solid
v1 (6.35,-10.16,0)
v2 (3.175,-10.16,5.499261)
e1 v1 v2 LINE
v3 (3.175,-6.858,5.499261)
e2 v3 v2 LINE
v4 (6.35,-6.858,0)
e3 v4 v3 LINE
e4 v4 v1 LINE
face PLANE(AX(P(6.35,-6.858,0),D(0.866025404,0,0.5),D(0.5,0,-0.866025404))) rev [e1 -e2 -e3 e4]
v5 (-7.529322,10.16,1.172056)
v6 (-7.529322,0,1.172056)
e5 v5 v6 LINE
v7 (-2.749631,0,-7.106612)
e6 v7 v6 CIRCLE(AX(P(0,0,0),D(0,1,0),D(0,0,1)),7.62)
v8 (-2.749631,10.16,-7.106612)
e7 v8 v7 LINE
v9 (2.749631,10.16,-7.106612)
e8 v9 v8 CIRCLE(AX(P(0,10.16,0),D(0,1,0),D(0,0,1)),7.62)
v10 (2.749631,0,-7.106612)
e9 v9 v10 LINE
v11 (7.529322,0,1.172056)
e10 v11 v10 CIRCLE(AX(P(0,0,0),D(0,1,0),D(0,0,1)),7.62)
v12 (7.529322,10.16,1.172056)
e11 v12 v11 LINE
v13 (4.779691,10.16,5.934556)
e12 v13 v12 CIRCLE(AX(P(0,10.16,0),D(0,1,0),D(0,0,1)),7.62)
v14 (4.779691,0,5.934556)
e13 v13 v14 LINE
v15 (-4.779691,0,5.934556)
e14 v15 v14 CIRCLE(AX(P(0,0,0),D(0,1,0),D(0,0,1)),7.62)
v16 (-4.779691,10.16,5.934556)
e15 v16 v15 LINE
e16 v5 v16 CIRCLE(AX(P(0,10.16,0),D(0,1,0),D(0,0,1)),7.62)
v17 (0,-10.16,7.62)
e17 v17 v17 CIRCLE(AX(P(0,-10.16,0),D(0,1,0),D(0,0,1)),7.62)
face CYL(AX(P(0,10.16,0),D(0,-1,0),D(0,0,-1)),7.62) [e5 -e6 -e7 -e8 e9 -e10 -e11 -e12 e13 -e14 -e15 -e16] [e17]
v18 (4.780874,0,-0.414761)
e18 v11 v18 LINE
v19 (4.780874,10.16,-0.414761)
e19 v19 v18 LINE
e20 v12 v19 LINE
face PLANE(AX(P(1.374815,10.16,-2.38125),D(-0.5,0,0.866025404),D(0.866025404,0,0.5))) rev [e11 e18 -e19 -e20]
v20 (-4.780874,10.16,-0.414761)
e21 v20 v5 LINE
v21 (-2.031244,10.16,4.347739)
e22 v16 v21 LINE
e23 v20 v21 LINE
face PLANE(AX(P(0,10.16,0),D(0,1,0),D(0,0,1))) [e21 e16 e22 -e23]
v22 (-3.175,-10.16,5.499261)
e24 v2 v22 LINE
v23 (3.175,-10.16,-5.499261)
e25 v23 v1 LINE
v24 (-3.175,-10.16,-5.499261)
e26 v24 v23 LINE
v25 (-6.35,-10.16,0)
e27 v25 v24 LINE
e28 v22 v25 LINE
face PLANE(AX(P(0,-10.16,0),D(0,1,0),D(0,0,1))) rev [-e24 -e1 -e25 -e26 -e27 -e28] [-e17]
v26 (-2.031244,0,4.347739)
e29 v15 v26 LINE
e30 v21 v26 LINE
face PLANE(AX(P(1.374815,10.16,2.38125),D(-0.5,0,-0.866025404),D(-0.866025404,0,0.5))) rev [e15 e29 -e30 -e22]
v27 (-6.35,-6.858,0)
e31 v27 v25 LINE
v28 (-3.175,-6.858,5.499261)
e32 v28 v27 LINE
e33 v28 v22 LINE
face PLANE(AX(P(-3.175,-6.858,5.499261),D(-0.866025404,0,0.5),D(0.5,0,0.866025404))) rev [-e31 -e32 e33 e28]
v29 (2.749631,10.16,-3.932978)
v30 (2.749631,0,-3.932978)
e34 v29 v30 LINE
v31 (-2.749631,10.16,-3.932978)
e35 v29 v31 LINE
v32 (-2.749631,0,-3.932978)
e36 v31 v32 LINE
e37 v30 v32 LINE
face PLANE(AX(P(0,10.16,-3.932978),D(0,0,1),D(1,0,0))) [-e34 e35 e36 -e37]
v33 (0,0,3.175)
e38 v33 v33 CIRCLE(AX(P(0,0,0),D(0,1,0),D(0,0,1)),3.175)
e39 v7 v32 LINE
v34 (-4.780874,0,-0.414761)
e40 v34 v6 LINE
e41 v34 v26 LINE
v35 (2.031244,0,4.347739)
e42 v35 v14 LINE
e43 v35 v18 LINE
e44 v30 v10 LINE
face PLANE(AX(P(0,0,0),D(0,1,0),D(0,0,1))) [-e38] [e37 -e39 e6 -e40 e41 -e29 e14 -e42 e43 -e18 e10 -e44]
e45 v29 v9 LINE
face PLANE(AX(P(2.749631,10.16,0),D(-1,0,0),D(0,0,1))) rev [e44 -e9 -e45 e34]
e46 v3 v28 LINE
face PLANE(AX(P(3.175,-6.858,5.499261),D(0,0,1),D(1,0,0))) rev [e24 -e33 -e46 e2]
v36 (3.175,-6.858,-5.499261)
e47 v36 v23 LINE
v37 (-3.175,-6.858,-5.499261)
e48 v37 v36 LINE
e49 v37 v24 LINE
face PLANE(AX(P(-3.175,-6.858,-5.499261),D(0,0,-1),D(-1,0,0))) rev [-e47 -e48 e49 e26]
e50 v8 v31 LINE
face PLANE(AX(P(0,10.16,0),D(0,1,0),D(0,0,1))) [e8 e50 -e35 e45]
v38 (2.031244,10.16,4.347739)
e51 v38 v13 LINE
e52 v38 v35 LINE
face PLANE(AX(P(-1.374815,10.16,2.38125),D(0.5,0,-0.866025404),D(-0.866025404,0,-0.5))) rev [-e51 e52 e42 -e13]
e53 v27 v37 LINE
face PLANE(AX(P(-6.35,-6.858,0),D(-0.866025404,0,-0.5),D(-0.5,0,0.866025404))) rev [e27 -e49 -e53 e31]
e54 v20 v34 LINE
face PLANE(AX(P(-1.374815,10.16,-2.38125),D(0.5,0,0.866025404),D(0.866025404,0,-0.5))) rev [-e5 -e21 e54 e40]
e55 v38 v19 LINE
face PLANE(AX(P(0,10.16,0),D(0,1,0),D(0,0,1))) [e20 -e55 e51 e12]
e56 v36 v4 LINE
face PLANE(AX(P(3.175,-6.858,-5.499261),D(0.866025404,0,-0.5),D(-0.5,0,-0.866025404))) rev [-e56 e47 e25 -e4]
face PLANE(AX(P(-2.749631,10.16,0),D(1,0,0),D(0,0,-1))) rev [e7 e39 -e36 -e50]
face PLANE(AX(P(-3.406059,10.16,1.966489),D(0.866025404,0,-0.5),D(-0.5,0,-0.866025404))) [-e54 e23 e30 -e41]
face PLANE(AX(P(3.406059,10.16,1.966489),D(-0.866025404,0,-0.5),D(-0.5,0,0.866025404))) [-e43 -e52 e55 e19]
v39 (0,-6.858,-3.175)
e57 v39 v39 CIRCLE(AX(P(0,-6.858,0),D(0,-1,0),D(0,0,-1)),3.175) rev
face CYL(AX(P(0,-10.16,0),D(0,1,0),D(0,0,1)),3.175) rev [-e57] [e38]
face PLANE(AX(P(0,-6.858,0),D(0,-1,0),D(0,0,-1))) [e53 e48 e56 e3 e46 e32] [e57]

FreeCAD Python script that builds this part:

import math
import FreeCAD as App
import Part
import Sketcher
Q = App.Units.Quantity


def add_polygon(sketch, points):
    """Adds a closed chain of lines whose ends are joined by coincident constraints."""
    first, n = sketch.GeometryCount, len(points)
    for a, b in zip(points, points[1:] + points[:1]):
        sketch.addGeometry(Part.LineSegment(App.Vector(*a, 0), App.Vector(*b, 0)), False)
    for i in range(n):
        sketch.addConstraint(Sketcher.Constraint("Coincident", first + i, 2, first + (i + 1) % n, 1))

doc = App.newDocument("Part")
body = doc.addObject("PartDesign::Body", "Body")

# Sketch on XZ plane
sketch1 = body.newObject("Sketcher::SketchObject", "Sketch")
sketch1.AttachmentSupport = (doc.getObject("XZ_Plane"), [""])
sketch1.MapMode = "FlatFace"
sketch1.addGeometry(Part.ArcOfCircle(Part.Circle(App.Vector(0, 0, 0), App.Vector(0, 0, 1), 7.62), math.radians(128.847967), math.radians(171.152033)), False)
sketch1.addGeometry(Part.LineSegment(App.Vector(-4.779691, 5.934556, 0), App.Vector(-2.031244, 4.347739, 0)), False)
sketch1.addGeometry(Part.LineSegment(App.Vector(-2.031244, 4.347739, 0), App.Vector(-4.780874, -0.414761, 0)), False)
sketch1.addGeometry(Part.LineSegment(App.Vector(-4.780874, -0.414761, 0), App.Vector(-7.529322, 1.172056, 0)), False)
sketch1.addConstraint(Sketcher.Constraint("Coincident", 0, 1, 1, 1))
sketch1.addConstraint(Sketcher.Constraint("Coincident", 1, 2, 2, 1))
sketch1.addConstraint(Sketcher.Constraint("Coincident", 2, 2, 3, 1))
sketch1.addConstraint(Sketcher.Constraint("Coincident", 3, 2, 0, 2))
sketch1.addConstraint(Sketcher.Constraint("Coincident", 0, 3, -1, 1))
sketch1.addConstraint(Sketcher.Constraint("Perpendicular", 1, 2))
sketch1.addConstraint(Sketcher.Constraint("Perpendicular", 2, 3))
sketch1.addConstraint(Sketcher.Constraint("Equal", 1, 3))
sketch1.addConstraint(Sketcher.Constraint("Radius", 0, Q("0.3 in")))
sketch1.addConstraint(Sketcher.Constraint("Angle", 1, Q("-30 deg")))
sketch1.addConstraint(Sketcher.Constraint("DistanceY", 2, 2, 1, 2, Q("0.1875 in")))
sketch1.addConstraint(Sketcher.Constraint("DistanceY", -1, 1, 1, 2, Q("4.347739 mm")))
pad1 = body.newObject("PartDesign::Pad", "Pad")
pad1.Profile = sketch1
pad1.Length = Q("0.4 in")
pad1.Reversed = True
body2 = doc.addObject("PartDesign::Body", "Body001")

# Sketch on XZ plane
sketch2 = body2.newObject("Sketcher::SketchObject", "Sketch001")
sketch2.AttachmentSupport = (doc.getObject("XZ_Plane001"), [""])
sketch2.MapMode = "FlatFace"
sketch2.addGeometry(Part.LineSegment(App.Vector(2.031244, 4.347739, 0), App.Vector(4.779691, 5.934556, 0)), False)
sketch2.addGeometry(Part.ArcOfCircle(Part.Circle(App.Vector(0, 0, 0), App.Vector(0, 0, 1), 7.62), math.radians(8.847967), math.radians(51.152033)), False)
sketch2.addGeometry(Part.LineSegment(App.Vector(7.529322, 1.172056, 0), App.Vector(4.780874, -0.414761, 0)), False)
sketch2.addGeometry(Part.LineSegment(App.Vector(4.780874, -0.414761, 0), App.Vector(2.031244, 4.347739, 0)), False)
sketch2.addConstraint(Sketcher.Constraint("Coincident", 0, 2, 1, 2))
sketch2.addConstraint(Sketcher.Constraint("Coincident", 1, 1, 2, 1))
sketch2.addConstraint(Sketcher.Constraint("Coincident", 2, 2, 3, 1))
sketch2.addConstraint(Sketcher.Constraint("Coincident", 3, 2, 0, 1))
sketch2.addConstraint(Sketcher.Constraint("Coincident", 1, 3, -1, 1))
sketch2.addConstraint(Sketcher.Constraint("Parallel", 0, 2))
sketch2.addConstraint(Sketcher.Constraint("Perpendicular", 2, 3))
sketch2.addConstraint(Sketcher.Constraint("Equal", 0, 2))
sketch2.addConstraint(Sketcher.Constraint("Radius", 1, Q("0.3 in")))
sketch2.addConstraint(Sketcher.Constraint("Angle", 0, Q("30 deg")))
sketch2.addConstraint(Sketcher.Constraint("DistanceY", 1, 1, 0, 2, Q("0.1875 in")))
sketch2.addConstraint(Sketcher.Constraint("DistanceY", 2, 2, -1, 1, Q("0.414761 mm")))
pad2 = body2.newObject("PartDesign::Pad", "Pad001")
pad2.Profile = sketch2
pad2.Length = Q("0.4 in")
pad2.Reversed = True
body3 = doc.addObject("PartDesign::Body", "Body002")

# Sketch on XZ plane
sketch3 = body3.newObject("Sketcher::SketchObject", "Sketch002")
sketch3.AttachmentSupport = (doc.getObject("XZ_Plane002"), [""])
sketch3.MapMode = "FlatFace"
sketch3.addGeometry(Part.ArcOfCircle(Part.Circle(App.Vector(0, 0, 0), App.Vector(0, 0, 1), 7.62), math.radians(-111.152033), math.radians(-68.847967)), False)
sketch3.addGeometry(Part.LineSegment(App.Vector(-2.749631, -7.106612, 0), App.Vector(-2.749631, -3.932978, 0)), False)
sketch3.addGeometry(Part.LineSegment(App.Vector(-2.749631, -3.932978, 0), App.Vector(2.749631, -3.932978, 0)), False)
sketch3.addGeometry(Part.LineSegment(App.Vector(2.749631, -3.932978, 0), App.Vector(2.749631, -7.106612, 0)), False)
sketch3.addConstraint(Sketcher.Constraint("Coincident", 0, 1, 1, 1))
sketch3.addConstraint(Sketcher.Constraint("Coincident", 1, 2, 2, 1))
sketch3.addConstraint(Sketcher.Constraint("Coincident", 2, 2, 3, 1))
sketch3.addConstraint(Sketcher.Constraint("Coincident", 3, 2, 0, 2))
sketch3.addConstraint(Sketcher.Constraint("Vertical", 1))
sketch3.addConstraint(Sketcher.Constraint("Horizontal", 2))
sketch3.addConstraint(Sketcher.Constraint("Vertical", 3))
sketch3.addConstraint(Sketcher.Constraint("Coincident", 0, 3, -1, 1))
sketch3.addConstraint(Sketcher.Constraint("Horizontal", 0, 1, 3, 2))
sketch3.addConstraint(Sketcher.Constraint("Radius", 0, Q("0.3 in")))
sketch3.addConstraint(Sketcher.Constraint("DistanceX", 2, 1, 2, 2, Q("5.499261 mm")))
sketch3.addConstraint(Sketcher.Constraint("DistanceY", 1, 1, 1, 2, Q("3.173634 mm")))
pad3 = body3.newObject("PartDesign::Pad", "Pad002")
pad3.Profile = sketch3
pad3.Length = Q("0.4 in")
pad3.Reversed = True
body.AllowCompound = True
doc.recompute()

boolean = body.newObject("PartDesign::Boolean", "Boolean")
boolean.Type = "Fuse"
boolean.addObjects([body2])
doc.recompute()

boolean2 = body.newObject("PartDesign::Boolean", "Boolean001")
boolean2.Type = "Fuse"
boolean2.addObjects([body3])

# Sketch on XZ plane
sketch4 = body.newObject("Sketcher::SketchObject", "Sketch003")
sketch4.AttachmentSupport = (doc.getObject("XZ_Plane"), [""])
sketch4.MapMode = "FlatFace"
sketch4.AttachmentOffset = App.Placement(App.Vector(0, 0, 0.4 * 25.4), App.Rotation())
sketch4.addGeometry(Part.ArcOfCircle(Part.Circle(App.Vector(0, 0, 0), App.Vector(0, 0, 1), 7.62), math.radians(90), math.radians(128.847967)), False)
sketch4.addGeometry(Part.ArcOfCircle(Part.Circle(App.Vector(0, 0, 0), App.Vector(0, 0, 1), 7.62), math.radians(51.152033), math.radians(90)), False)
sketch4.addGeometry(Part.ArcOfCircle(Part.Circle(App.Vector(0, 0, 0), App.Vector(0, 0, 1), 7.62), math.radians(8.847967), math.radians(51.152033)), False)
sketch4.addGeometry(Part.ArcOfCircle(Part.Circle(App.Vector(0, 0, 0), App.Vector(0, 0, 1), 7.62), math.radians(0), math.radians(8.847967)), False)
sketch4.addGeometry(Part.ArcOfCircle(Part.Circle(App.Vector(0, 0, 0), App.Vector(0, 0, 1), 7.62), math.radians(-68.847967), math.radians(0)), False)
sketch4.addGeometry(Part.ArcOfCircle(Part.Circle(App.Vector(0, 0, 0), App.Vector(0, 0, 1), 7.62), math.radians(-111.152033), math.radians(-68.847967)), False)
sketch4.addGeometry(Part.ArcOfCircle(Part.Circle(App.Vector(0, 0, 0), App.Vector(0, 0, 1), 7.62), math.radians(171.152033), math.radians(248.847967)), False)
sketch4.addGeometry(Part.ArcOfCircle(Part.Circle(App.Vector(0, 0, 0), App.Vector(0, 0, 1), 7.62), math.radians(128.847967), math.radians(171.152033)), False)
sketch4.addGeometry(Part.ArcOfCircle(Part.Circle(App.Vector(0, 0, 0), App.Vector(0, 0, 1), 3.175), math.radians(0), math.radians(90)), False)
sketch4.addGeometry(Part.ArcOfCircle(Part.Circle(App.Vector(0, 0, 0), App.Vector(0, 0, 1), 3.175), math.radians(90), math.radians(210)), False)
sketch4.addGeometry(Part.ArcOfCircle(Part.Circle(App.Vector(0, 0, 0), App.Vector(0, 0, 1), 3.175), math.radians(-150), math.radians(-30)), False)
sketch4.addGeometry(Part.ArcOfCircle(Part.Circle(App.Vector(0, 0, 0), App.Vector(0, 0, 1), 3.175), math.radians(-30), math.radians(0)), False)
sketch4.addConstraint(Sketcher.Constraint("Tangent", 0, 1, 1, 2))
sketch4.addConstraint(Sketcher.Constraint("Tangent", 1, 1, 2, 2))
sketch4.addConstraint(Sketcher.Constraint("Tangent", 2, 1, 3, 2))
sketch4.addConstraint(Sketcher.Constraint("Tangent", 3, 1, 4, 2))
sketch4.addConstraint(Sketcher.Constraint("Tangent", 4, 1, 5, 2))
sketch4.addConstraint(Sketcher.Constraint("Tangent", 5, 1, 6, 2))
sketch4.addConstraint(Sketcher.Constraint("Tangent", 6, 1, 7, 2))
sketch4.addConstraint(Sketcher.Constraint("Tangent", 7, 1, 0, 2))
sketch4.addConstraint(Sketcher.Constraint("Tangent", 8, 2, 9, 1))
sketch4.addConstraint(Sketcher.Constraint("Tangent", 9, 2, 10, 1))
sketch4.addConstraint(Sketcher.Constraint("Tangent", 10, 2, 11, 1))
sketch4.addConstraint(Sketcher.Constraint("Tangent", 11, 2, 8, 1))
sketch4.addConstraint(Sketcher.Constraint("Coincident", 0, 3, -1, 1))
sketch4.addConstraint(Sketcher.Constraint("Coincident", 2, 3, -1, 1))
sketch4.addConstraint(Sketcher.Constraint("Coincident", 4, 3, -1, 1))
sketch4.addConstraint(Sketcher.Constraint("Coincident", 8, 3, -1, 1))
sketch4.addConstraint(Sketcher.Constraint("Equal", 4, 5))
sketch4.addConstraint(Sketcher.Constraint("Equal", 8, 9))
sketch4.addConstraint(Sketcher.Constraint("PointOnObject", 0, 1, -2))
sketch4.addConstraint(Sketcher.Constraint("PointOnObject", 3, 1, -1))
sketch4.addConstraint(Sketcher.Constraint("PointOnObject", 8, 2, -2))
sketch4.addConstraint(Sketcher.Constraint("PointOnObject", 11, 2, -1))
sketch4.addConstraint(Sketcher.Constraint("Horizontal", 4, 1, 5, 1))
sketch4.addConstraint(Sketcher.Constraint("Horizontal", 2, 1, 6, 1))
sketch4.addConstraint(Sketcher.Constraint("Horizontal", 1, 1, 7, 1))
sketch4.addConstraint(Sketcher.Constraint("Horizontal", 9, 2, 10, 2))
sketch4.addConstraint(Sketcher.Constraint("Vertical", 5, 1, 9, 2))
sketch4.addConstraint(Sketcher.Constraint("Radius", 0, Q("0.3 in")))
sketch4.addConstraint(Sketcher.Constraint("Radius", 8, Q("0.125 in")))
sketch4.addConstraint(Sketcher.Constraint("DistanceY", 9, 2, -1, 1, Q("0.0625 in")))
sketch4.addConstraint(Sketcher.Constraint("DistanceY", 2, 1, 1, 1, Q("0.1875 in")))
sketch4.addConstraint(Sketcher.Constraint("DistanceX", -1, 1, 1, 1, Q("4.779691 mm")))
pad4 = body.newObject("PartDesign::Pad", "Pad003")
pad4.Profile = sketch4
pad4.Length = Q("0.4 in")
pad4.Reversed = True

# Sketch on XZ plane
sketch5 = body.newObject("Sketcher::SketchObject", "Sketch004")
sketch5.AttachmentSupport = (doc.getObject("XZ_Plane"), [""])
sketch5.MapMode = "FlatFace"
sketch5.AttachmentOffset = App.Placement(App.Vector(0, 0, 0.4 * 25.4), App.Rotation())
add_polygon(sketch5, [(6.35, 0), (3.175, 5.499261), (-3.175, 5.499261), (-6.35, 0), (-3.175, -5.499261), (3.175, -5.499261)])  # lines 0-5
sketch5.addConstraint(Sketcher.Constraint("Horizontal", 1))
sketch5.addConstraint(Sketcher.Constraint("Horizontal", 4))
sketch5.addConstraint(Sketcher.Constraint("Symmetric", 0, 2, 3, 2, -1, 1))
sketch5.addConstraint(Sketcher.Constraint("Symmetric", 2, 2, 5, 2, -1, 1))
sketch5.addConstraint(Sketcher.Constraint("PointOnObject", 2, 2, -1))
sketch5.addConstraint(Sketcher.Constraint("Parallel", 2, 5))
sketch5.addConstraint(Sketcher.Constraint("Vertical", 1, 2, 3, 2))
sketch5.addConstraint(Sketcher.Constraint("Angle", 0, Q("120 deg")))
sketch5.addConstraint(Sketcher.Constraint("DistanceX", 1, 2, 1, 1, Q("0.25 in")))
sketch5.addConstraint(Sketcher.Constraint("DistanceX", 2, 2, 5, 2, Q("0.5 in")))
pocket1 = body.newObject("PartDesign::Pocket", "Pocket")
pocket1.Profile = sketch5
pocket1.Length = Q("0.13 in")

doc.recompute()
